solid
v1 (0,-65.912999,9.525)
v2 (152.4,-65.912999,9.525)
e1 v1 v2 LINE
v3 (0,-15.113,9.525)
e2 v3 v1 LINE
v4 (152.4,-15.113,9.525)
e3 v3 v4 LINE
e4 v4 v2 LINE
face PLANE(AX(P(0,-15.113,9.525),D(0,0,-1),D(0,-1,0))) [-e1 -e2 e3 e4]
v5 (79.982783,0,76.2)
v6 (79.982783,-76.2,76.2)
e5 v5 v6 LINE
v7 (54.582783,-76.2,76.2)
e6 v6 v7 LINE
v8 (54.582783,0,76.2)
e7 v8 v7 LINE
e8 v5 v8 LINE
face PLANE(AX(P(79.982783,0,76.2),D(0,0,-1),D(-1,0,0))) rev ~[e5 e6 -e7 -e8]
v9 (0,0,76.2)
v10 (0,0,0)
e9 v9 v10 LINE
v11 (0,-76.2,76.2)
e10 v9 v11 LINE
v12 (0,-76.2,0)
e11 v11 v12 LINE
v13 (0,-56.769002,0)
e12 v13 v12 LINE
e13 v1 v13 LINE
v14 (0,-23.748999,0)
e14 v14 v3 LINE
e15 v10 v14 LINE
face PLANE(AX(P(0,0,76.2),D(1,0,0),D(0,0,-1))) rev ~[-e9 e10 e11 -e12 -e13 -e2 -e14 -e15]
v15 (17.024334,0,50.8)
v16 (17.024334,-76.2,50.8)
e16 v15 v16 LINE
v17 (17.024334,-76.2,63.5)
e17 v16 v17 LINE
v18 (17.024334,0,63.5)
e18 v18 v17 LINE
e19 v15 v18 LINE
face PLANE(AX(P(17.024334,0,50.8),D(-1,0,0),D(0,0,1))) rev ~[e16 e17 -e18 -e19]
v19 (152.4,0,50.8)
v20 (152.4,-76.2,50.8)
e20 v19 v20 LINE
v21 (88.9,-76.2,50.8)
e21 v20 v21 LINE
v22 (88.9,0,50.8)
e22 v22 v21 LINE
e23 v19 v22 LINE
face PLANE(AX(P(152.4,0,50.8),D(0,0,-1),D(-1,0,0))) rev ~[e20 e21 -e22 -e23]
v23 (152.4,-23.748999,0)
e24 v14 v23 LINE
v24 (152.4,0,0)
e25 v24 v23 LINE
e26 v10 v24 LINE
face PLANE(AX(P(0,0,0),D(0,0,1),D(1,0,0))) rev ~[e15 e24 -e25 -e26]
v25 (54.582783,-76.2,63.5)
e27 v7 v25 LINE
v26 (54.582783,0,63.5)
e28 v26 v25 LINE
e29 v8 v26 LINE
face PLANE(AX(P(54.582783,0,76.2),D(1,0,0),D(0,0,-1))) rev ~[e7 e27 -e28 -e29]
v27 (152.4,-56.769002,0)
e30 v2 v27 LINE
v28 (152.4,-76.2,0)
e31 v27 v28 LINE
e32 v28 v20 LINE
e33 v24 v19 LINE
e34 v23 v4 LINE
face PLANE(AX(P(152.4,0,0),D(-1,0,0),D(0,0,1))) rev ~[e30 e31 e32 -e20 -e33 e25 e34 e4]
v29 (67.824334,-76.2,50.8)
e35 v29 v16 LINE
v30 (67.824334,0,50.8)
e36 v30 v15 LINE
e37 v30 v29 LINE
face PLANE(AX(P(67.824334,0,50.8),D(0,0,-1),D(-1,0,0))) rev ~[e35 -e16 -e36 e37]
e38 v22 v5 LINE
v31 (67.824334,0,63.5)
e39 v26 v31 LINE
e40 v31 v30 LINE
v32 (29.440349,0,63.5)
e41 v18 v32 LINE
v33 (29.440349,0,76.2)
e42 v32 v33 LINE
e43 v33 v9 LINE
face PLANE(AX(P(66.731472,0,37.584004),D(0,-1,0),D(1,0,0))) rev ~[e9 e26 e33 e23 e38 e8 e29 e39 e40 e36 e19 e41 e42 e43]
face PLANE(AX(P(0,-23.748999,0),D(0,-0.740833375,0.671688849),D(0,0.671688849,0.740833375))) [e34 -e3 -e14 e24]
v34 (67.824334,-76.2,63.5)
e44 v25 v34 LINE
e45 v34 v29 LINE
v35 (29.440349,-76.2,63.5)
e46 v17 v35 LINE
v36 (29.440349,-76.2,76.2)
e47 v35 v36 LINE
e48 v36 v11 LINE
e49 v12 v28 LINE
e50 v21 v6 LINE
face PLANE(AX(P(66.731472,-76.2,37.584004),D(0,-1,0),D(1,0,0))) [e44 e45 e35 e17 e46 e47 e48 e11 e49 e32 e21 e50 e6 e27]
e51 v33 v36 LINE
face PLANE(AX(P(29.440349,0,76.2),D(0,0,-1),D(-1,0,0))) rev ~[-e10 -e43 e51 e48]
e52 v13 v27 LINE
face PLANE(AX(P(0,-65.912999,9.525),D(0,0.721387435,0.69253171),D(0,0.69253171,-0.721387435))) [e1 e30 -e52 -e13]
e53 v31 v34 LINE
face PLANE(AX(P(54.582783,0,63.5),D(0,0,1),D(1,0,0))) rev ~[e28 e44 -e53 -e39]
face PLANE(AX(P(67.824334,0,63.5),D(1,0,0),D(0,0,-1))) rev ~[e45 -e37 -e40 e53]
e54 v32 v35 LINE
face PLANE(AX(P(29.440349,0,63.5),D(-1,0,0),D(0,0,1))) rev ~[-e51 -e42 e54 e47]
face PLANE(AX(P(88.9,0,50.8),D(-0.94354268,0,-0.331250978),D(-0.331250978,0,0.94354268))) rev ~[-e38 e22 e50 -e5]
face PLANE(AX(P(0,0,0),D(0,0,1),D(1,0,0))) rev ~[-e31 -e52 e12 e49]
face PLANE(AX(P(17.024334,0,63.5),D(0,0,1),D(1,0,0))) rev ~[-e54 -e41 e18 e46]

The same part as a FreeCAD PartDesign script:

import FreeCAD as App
import Part
import Sketcher
Q = App.Units.Quantity

doc = App.newDocument("Part")
params = doc.addObject("Spreadsheet::Sheet", "Params")
for row, (alias, value) in enumerate([
    ("sketch1_width", "6 in"),
    ("sketch1_width2", "1 in"),
    ("sketch1_width3", "2 in"),
    ("sketch1_height", "3 in"),
    ("sketch1_width4", "2.5 in"),
    ("pad1_length", "3 in"),
    ("sketch2_width", "2 in"),
    ("sketch2_width2", "1.3000001 in"),
    ("pocket1_length", "7.19 in"),
], start=1):
    params.set(f"A{row}", alias)
    params.set(f"B{row}", "=" + value)
    params.setAlias(f"B{row}", alias)

body = doc.addObject("PartDesign::Body", "Body")

sketch1 = body.newObject("Sketcher::SketchObject", "Sketch")
sketch1.AttachmentSupport = (doc.getObject("XZ_Plane"), [""])
sketch1.MapMode = "FlatFace"
sketch1.addGeometry(Part.LineSegment(App.Vector(0, 76, 0), App.Vector(0, 0, 0)), False)
sketch1.addGeometry(Part.LineSegment(App.Vector(0, 0, 0), App.Vector(152, 0, 0)), False)
sketch1.addGeometry(Part.LineSegment(App.Vector(152, 0, 0), App.Vector(152, 51, 0)), False)
sketch1.addGeometry(Part.LineSegment(App.Vector(152, 51, 0), App.Vector(89, 51, 0)), False)
sketch1.addGeometry(Part.LineSegment(App.Vector(89, 51, 0), App.Vector(80, 76, 0)), False)
sketch1.addGeometry(Part.LineSegment(App.Vector(80, 76, 0), App.Vector(55, 76, 0)), False)
sketch1.addGeometry(Part.LineSegment(App.Vector(55, 76, 0), App.Vector(55, 64, 0)), False)
sketch1.addGeometry(Part.LineSegment(App.Vector(55, 64, 0), App.Vector(68, 64, 0)), False)
sketch1.addGeometry(Part.LineSegment(App.Vector(68, 64, 0), App.Vector(68, 51, 0)), False)
sketch1.addGeometry(Part.LineSegment(App.Vector(68, 51, 0), App.Vector(17, 51, 0)), False)
sketch1.addGeometry(Part.LineSegment(App.Vector(17, 51, 0), App.Vector(17, 64, 0)), False)
sketch1.addGeometry(Part.LineSegment(App.Vector(17, 64, 0), App.Vector(29, 64, 0)), False)
sketch1.addGeometry(Part.LineSegment(App.Vector(29, 64, 0), App.Vector(29, 76, 0)), False)
sketch1.addGeometry(Part.LineSegment(App.Vector(29, 76, 0), App.Vector(0, 76, 0)), False)
sketch1.addConstraint(Sketcher.Constraint("Coincident", 0, 2, 1, 1))
sketch1.addConstraint(Sketcher.Constraint("Coincident", 1, 2, 2, 1))
sketch1.addConstraint(Sketcher.Constraint("Coincident", 2, 2, 3, 1))
sketch1.addConstraint(Sketcher.Constraint("Coincident", 3, 2, 4, 1))
sketch1.addConstraint(Sketcher.Constraint("Coincident", 4, 2, 5, 1))
sketch1.addConstraint(Sketcher.Constraint("Coincident", 5, 2, 6, 1))
sketch1.addConstraint(Sketcher.Constraint("Coincident", 6, 2, 7, 1))
sketch1.addConstraint(Sketcher.Constraint("Coincident", 7, 2, 8, 1))
sketch1.addConstraint(Sketcher.Constraint("Coincident", 8, 2, 9, 1))
sketch1.addConstraint(Sketcher.Constraint("Coincident", 9, 2, 10, 1))
sketch1.addConstraint(Sketcher.Constraint("Coincident", 10, 2, 11, 1))
sketch1.addConstraint(Sketcher.Constraint("Coincident", 11, 2, 12, 1))
sketch1.addConstraint(Sketcher.Constraint("Coincident", 12, 2, 13, 1))
sketch1.addConstraint(Sketcher.Constraint("Coincident", 13, 2, 0, 1))
sketch1.addConstraint(Sketcher.Constraint("Vertical", 0))
sketch1.addConstraint(Sketcher.Constraint("Horizontal", 1))
sketch1.addConstraint(Sketcher.Constraint("Vertical", 2))
sketch1.addConstraint(Sketcher.Constraint("Horizontal", 3))
sketch1.addConstraint(Sketcher.Constraint("Horizontal", 5))
sketch1.addConstraint(Sketcher.Constraint("Vertical", 6))
sketch1.addConstraint(Sketcher.Constraint("Horizontal", 7))
sketch1.addConstraint(Sketcher.Constraint("Vertical", 8))
sketch1.addConstraint(Sketcher.Constraint("Horizontal", 9))
sketch1.addConstraint(Sketcher.Constraint("Vertical", 10))
sketch1.addConstraint(Sketcher.Constraint("Horizontal", 11))
sketch1.addConstraint(Sketcher.Constraint("Vertical", 12))
sketch1.addConstraint(Sketcher.Constraint("Horizontal", 13))
sketch1.addConstraint(Sketcher.Constraint("Coincident", 0, 2, -1, 1))
sketch1.addConstraint(Sketcher.Constraint("Horizontal", 3, 2, 8, 2))
sketch1.addConstraint(Sketcher.Constraint("Horizontal", 7, 2, 10, 2))
sketch1.addConstraint(Sketcher.Constraint("Horizontal", 5, 2, 12, 2))
sketch1.addConstraint(Sketcher.Constraint("Equal", 9, 2))
sketch1.addConstraint(Sketcher.Constraint("Equal", 6, 8))
sketch1.addConstraint(Sketcher.Constraint("DistanceX", 1, 1, 1, 2, Q("6 in")))
sketch1.addConstraint(Sketcher.Constraint("DistanceX", 5, 2, 5, 1, Q("1 in")))
sketch1.addConstraint(Sketcher.Constraint("DistanceX", 9, 2, 9, 1, Q("2 in")))
sketch1.addConstraint(Sketcher.Constraint("DistanceY", 0, 2, 0, 1, Q("3 in")))
sketch1.addConstraint(Sketcher.Constraint("DistanceX", 3, 2, 3, 1, Q("2.5 in")))
sketch1.addConstraint(Sketcher.Constraint("DistanceX", 7, 1, 7, 2, 13.241551))
sketch1.addConstraint(Sketcher.Constraint("DistanceX", 13, 2, 13, 1, 29.440349))
sketch1.addConstraint(Sketcher.Constraint("Distance", 4, 26.919821))
sketch1.setExpression("Constraints[33]", "Params.sketch1_width")
sketch1.setExpression("Constraints[34]", "Params.sketch1_width2")
sketch1.setExpression("Constraints[35]", "Params.sketch1_width3")
sketch1.setExpression("Constraints[36]", "Params.sketch1_height")
sketch1.setExpression("Constraints[37]", "Params.sketch1_width4")
pad1 = body.newObject("PartDesign::Pad", "Pad")
pad1.Profile = sketch1
pad1.setExpression("Length", "Params.pad1_length")

sketch2 = body.newObject("Sketcher::SketchObject", "Sketch001")
sketch2.AttachmentSupport = (doc.getObject("YZ_Plane"), [""])
sketch2.MapMode = "FlatFace"
sketch2.addGeometry(Part.LineSegment(App.Vector(-57, 0, 0), App.Vector(-24, 0, 0)), False)
sketch2.addGeometry(Part.LineSegment(App.Vector(-24, 0, 0), App.Vector(-15, 10, 0)), False)
sketch2.addGeometry(Part.LineSegment(App.Vector(-15, 10, 0), App.Vector(-66, 10, 0)), False)
sketch2.addGeometry(Part.LineSegment(App.Vector(-66, 10, 0), App.Vector(-57, 0, 0)), False)
sketch2.addConstraint(Sketcher.Constraint("Coincident", 0, 2, 1, 1))
sketch2.addConstraint(Sketcher.Constraint("Coincident", 1, 2, 2, 1))
sketch2.addConstraint(Sketcher.Constraint("Coincident", 2, 2, 3, 1))
sketch2.addConstraint(Sketcher.Constraint("Coincident", 3, 2, 0, 1))
sketch2.addConstraint(Sketcher.Constraint("Horizontal", 0))
sketch2.addConstraint(Sketcher.Constraint("Horizontal", 2))
sketch2.addConstraint(Sketcher.Constraint("PointOnObject", 0, 2, -1))
sketch2.addConstraint(Sketcher.Constraint("DistanceX", 2, 2, 2, 1, Q("2 in")))
sketch2.addConstraint(Sketcher.Constraint("DistanceX", 0, 1, 0, 2, Q("1.3000001 in")))
sketch2.addConstraint(Sketcher.Constraint("DistanceX", 0, 2, 1, 2, Q("0.34 in")))
sketch2.addConstraint(Sketcher.Constraint("DistanceX", 0, 2, -1, 1, Q("0.935 in")))
sketch2.addConstraint(Sketcher.Constraint("DistanceY", -1, 1, 1, 2, Q("0.375 in")))
sketch2.setExpression("Constraints[7]", "Params.sketch2_width")
sketch2.setExpression("Constraints[8]", "Params.sketch2_width2")
pocket1 = body.newObject("PartDesign::Pocket", "Pocket")
pocket1.Profile = sketch2
pocket1.setExpression("Length", "Params.pocket1_length")
pocket1.Reversed = True

doc.recompute()
